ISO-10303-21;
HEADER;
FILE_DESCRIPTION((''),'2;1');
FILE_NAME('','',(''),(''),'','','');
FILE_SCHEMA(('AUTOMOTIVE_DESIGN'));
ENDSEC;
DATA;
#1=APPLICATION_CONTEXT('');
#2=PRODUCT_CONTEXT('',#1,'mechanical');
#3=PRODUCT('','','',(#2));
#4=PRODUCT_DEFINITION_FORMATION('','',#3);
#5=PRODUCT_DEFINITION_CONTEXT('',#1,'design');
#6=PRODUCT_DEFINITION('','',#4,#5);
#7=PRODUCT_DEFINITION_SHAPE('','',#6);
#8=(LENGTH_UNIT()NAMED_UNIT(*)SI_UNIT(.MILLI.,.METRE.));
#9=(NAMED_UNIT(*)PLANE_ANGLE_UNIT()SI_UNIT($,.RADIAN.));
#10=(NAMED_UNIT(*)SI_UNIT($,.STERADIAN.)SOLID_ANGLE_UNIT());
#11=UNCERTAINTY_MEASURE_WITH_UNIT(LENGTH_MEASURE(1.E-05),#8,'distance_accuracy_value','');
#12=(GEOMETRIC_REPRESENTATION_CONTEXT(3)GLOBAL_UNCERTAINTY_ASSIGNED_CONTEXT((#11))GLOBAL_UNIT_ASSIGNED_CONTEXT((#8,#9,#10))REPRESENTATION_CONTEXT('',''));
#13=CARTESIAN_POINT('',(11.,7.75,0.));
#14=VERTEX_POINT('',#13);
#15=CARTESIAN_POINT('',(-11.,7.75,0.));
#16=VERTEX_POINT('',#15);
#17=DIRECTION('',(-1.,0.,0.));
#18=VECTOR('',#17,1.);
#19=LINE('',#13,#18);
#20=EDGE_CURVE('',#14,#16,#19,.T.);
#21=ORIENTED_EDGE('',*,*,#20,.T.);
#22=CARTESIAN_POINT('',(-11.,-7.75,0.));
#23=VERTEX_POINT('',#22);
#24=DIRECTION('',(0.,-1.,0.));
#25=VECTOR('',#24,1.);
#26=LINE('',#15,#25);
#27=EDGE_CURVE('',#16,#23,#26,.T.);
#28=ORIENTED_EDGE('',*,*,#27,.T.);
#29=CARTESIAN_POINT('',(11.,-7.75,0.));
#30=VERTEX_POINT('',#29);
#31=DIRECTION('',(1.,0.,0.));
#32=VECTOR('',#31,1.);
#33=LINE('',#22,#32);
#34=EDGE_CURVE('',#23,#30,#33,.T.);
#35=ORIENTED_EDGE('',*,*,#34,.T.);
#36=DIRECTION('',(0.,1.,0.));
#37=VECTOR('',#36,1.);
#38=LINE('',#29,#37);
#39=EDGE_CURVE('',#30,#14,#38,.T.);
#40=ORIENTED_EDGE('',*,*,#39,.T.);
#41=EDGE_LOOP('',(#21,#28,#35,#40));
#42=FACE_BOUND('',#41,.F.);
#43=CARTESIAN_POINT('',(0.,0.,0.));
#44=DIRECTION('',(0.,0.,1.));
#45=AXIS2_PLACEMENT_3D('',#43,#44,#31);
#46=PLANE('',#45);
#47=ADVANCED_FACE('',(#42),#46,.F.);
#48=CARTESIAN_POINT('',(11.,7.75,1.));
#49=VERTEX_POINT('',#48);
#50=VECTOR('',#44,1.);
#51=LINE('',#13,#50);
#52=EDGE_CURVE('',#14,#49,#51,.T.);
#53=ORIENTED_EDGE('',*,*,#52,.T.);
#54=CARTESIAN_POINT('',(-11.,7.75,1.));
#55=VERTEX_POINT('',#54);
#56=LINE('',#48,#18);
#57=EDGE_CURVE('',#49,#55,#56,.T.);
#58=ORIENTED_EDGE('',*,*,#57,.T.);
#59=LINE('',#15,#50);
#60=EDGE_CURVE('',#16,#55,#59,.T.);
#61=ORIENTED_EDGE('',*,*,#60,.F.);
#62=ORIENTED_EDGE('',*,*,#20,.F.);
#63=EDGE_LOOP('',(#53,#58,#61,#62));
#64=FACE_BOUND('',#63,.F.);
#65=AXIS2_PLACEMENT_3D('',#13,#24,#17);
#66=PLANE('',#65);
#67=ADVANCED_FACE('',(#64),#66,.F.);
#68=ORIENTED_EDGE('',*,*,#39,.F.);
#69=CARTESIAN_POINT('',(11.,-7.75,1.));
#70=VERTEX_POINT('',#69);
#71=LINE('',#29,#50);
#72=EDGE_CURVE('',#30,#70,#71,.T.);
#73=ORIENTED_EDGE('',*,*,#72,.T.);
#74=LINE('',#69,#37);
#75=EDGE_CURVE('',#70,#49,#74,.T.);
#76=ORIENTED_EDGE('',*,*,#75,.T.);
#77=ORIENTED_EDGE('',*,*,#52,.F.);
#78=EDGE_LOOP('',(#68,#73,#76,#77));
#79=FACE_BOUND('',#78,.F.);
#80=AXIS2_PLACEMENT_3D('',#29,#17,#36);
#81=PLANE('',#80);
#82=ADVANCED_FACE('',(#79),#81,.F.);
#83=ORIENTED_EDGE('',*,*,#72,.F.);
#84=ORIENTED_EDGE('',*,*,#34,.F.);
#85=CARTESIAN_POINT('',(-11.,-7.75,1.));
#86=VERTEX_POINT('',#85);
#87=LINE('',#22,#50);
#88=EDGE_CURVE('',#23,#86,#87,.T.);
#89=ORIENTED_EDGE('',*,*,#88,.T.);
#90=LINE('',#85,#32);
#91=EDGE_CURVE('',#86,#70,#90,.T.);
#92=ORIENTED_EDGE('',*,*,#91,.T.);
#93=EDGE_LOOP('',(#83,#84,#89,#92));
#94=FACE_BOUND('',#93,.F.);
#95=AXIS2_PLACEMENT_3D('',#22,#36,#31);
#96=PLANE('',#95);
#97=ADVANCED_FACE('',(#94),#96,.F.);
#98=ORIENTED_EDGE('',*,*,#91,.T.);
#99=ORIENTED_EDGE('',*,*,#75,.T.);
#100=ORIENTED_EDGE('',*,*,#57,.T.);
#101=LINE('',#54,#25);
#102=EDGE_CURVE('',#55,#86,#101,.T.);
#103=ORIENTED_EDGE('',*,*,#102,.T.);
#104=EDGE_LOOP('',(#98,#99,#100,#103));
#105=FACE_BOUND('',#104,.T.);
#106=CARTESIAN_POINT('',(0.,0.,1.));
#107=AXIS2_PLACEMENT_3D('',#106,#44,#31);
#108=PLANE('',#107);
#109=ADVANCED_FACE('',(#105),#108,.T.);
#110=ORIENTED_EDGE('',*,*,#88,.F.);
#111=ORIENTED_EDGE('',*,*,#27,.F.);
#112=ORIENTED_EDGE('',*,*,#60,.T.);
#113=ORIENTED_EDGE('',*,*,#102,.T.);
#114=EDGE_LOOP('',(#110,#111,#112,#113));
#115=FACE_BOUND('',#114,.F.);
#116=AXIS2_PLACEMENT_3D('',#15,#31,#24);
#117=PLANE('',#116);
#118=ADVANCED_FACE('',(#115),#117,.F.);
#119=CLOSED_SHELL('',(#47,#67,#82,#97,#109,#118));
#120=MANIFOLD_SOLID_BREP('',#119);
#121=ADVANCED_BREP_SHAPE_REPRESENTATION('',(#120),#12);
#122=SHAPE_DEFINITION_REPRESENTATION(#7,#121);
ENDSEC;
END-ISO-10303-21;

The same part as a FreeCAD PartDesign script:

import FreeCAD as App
import Part
import Sketcher
Q = App.Units.Quantity

doc = App.newDocument("Part")
body = doc.addObject("PartDesign::Body", "Body")

sketch1 = body.newObject("Sketcher::SketchObject", "Sketch")
sketch1.AttachmentSupport = (doc.getObject("XY_Plane"), [""])
sketch1.MapMode = "FlatFace"
sketch1.addGeometry(Part.LineSegment(App.Vector(-11, 7.75, 0), App.Vector(-11, -7.75, 0)), False)
sketch1.addGeometry(Part.LineSegment(App.Vector(-11, -7.75, 0), App.Vector(11, -7.75, 0)), False)
sketch1.addGeometry(Part.LineSegment(App.Vector(11, -7.75, 0), App.Vector(11, 7.75, 0)), False)
sketch1.addGeometry(Part.LineSegment(App.Vector(11, 7.75, 0), App.Vector(-11, 7.75, 0)), False)
sketch1.addConstraint(Sketcher.Constraint("Coincident", 0, 2, 1, 1))
sketch1.addConstraint(Sketcher.Constraint("Coincident", 1, 2, 2, 1))
sketch1.addConstraint(Sketcher.Constraint("Coincident", 2, 2, 3, 1))
sketch1.addConstraint(Sketcher.Constraint("Coincident", 3, 2, 0, 1))
sketch1.addConstraint(Sketcher.Constraint("Vertical", 0))
sketch1.addConstraint(Sketcher.Constraint("Horizontal", 1))
sketch1.addConstraint(Sketcher.Constraint("Vertical", 2))
sketch1.addConstraint(Sketcher.Constraint("Horizontal", 3))
sketch1.addConstraint(Sketcher.Constraint("Symmetric", 0, 2, 2, 2, -1, 1))
sketch1.addConstraint(Sketcher.Constraint("DistanceX", 1, 1, 1, 2, Q("22 mm")))
sketch1.addConstraint(Sketcher.Constraint("DistanceY", 0, 2, 0, 1, Q("15.5 mm")))
pad1 = body.newObject("PartDesign::Pad", "Pad")
pad1.Profile = sketch1
pad1.Length = 1

doc.recompute()
